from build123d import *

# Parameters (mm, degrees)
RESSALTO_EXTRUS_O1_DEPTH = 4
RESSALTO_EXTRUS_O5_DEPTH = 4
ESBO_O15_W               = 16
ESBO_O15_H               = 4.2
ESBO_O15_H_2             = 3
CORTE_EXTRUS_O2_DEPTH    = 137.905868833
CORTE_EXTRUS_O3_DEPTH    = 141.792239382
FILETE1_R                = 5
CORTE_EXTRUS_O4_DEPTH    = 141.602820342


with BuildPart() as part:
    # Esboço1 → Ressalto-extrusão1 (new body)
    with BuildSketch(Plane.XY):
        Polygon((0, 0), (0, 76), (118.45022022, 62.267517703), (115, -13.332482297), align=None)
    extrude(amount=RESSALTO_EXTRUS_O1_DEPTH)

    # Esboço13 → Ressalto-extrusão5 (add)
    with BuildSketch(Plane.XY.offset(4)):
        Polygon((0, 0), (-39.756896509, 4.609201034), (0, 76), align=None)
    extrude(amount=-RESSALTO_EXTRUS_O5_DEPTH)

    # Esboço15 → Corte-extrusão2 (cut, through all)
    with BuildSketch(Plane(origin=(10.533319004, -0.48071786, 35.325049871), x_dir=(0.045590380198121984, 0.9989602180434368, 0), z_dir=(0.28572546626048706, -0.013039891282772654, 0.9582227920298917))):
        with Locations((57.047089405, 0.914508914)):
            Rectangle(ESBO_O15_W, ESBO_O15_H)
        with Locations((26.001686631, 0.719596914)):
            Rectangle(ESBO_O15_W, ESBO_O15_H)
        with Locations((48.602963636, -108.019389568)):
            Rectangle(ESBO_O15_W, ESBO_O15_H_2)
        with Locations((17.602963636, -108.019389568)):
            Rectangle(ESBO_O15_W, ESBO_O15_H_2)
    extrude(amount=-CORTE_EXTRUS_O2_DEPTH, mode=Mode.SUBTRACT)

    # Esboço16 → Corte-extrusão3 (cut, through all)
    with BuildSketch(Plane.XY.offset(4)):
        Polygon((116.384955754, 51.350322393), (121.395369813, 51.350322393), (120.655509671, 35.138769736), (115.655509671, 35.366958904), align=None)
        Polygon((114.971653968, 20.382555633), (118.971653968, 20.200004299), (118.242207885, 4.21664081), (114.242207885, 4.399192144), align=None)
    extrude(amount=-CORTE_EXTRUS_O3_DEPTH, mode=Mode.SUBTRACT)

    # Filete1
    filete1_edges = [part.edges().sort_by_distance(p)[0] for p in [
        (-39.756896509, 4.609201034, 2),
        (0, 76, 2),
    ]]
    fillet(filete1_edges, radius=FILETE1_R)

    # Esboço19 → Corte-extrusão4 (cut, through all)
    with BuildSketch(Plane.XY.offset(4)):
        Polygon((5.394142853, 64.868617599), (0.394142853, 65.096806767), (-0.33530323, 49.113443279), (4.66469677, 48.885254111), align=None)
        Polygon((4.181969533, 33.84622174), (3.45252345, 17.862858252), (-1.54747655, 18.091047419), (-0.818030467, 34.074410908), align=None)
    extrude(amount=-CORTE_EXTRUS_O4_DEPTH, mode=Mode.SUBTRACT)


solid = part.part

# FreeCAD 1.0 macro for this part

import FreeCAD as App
import Part
import Sketcher

V = App.Vector
Q = App.Units.Quantity


def edges_at(feature, points):
    """Names of the edges that pass closest to the given points."""
    edges = feature.Shape.Edges
    near = lambda p: min(range(len(edges)), key=lambda i: edges[i].distToShape(Part.Vertex(*p))[0])
    return sorted({f"Edge{near(p) + 1}" for p in points})


def add_polygon(sketch, points):
    """Adds a closed chain of lines whose ends are joined by coincident constraints."""
    first, n = sketch.GeometryCount, len(points)
    for a, b in zip(points, points[1:] + points[:1]):
        sketch.addGeometry(Part.LineSegment(App.Vector(*a, 0), App.Vector(*b, 0)), False)
    for i in range(n):
        sketch.addConstraint(Sketcher.Constraint("Coincident", first + i, 2, first + (i + 1) % n, 1))

doc = App.newDocument("Part")
params = doc.addObject("Spreadsheet::Sheet", "Params")
for row, (alias, value) in enumerate([
    ("sketch1_height", "76 mm"),
    ("pad1_length", "4 mm"),
    ("sketch2_height", "76 mm"),
    ("pad2_length", "4 mm"),
    ("sketch3_width", "16 mm"),
    ("sketch3_height", "3 mm"),
    ("sketch3_height2", "4.2 mm"),
    ("sketch4_length", "16 mm"),
    ("fillet_radius", "5 mm"),
    ("sketch5_length", "16 mm"),
], start=1):
    params.set(f"A{row}", alias)
    params.set(f"B{row}", "=" + value)
    params.setAlias(f"B{row}", alias)

body = doc.addObject("PartDesign::Body", "Body")

sketch1 = body.newObject("Sketcher::SketchObject", "Sketch")
sketch1.AttachmentSupport = (doc.getObject("XY_Plane"), [""])
sketch1.MapMode = "FlatFace"
add_polygon(sketch1, [(0, 76), (0, 0), (115, -13.332482), (118.45022, 62.267518)])
sketch1.addConstraint(Sketcher.Constraint("Vertical", 0))
sketch1.addConstraint(Sketcher.Constraint("Coincident", 0, 2, -1, 1))
sketch1.addConstraint(Sketcher.Constraint("Parallel", 1, 3))
sketch1.addConstraint(Sketcher.Constraint("DistanceY", 0, 2, 0, 1, Q("76 mm")))
sketch1.addConstraint(Sketcher.Constraint("DistanceX", -1, 1, 1, 2, Q("115 mm")))
sketch1.addConstraint(Sketcher.Constraint("DistanceY", 1, 2, 2, 2, Q("75.6 mm")))
sketch1.addConstraint(Sketcher.Constraint("Distance", 3, Q("119.243598 mm")))
sketch1.setExpression("Constraints[7]", "Params.sketch1_height")
pad1 = body.newObject("PartDesign::Pad", "Pad")
pad1.Profile = sketch1
pad1.setExpression("Length", "Params.pad1_length")

sketch2 = body.newObject("Sketcher::SketchObject", "Sketch001")
sketch2.AttachmentSupport = (doc.getObject("XY_Plane"), [""])
sketch2.MapMode = "FlatFace"
sketch2.AttachmentOffset = App.Placement(V(0, 0, 4), App.Rotation())
add_polygon(sketch2, [(-39.756897, 4.609201), (0, 0), (0, 76)])
sketch2.addConstraint(Sketcher.Constraint("Vertical", 1))
sketch2.addConstraint(Sketcher.Constraint("Coincident", 0, 2, -1, 1))
sketch2.addConstraint(Sketcher.Constraint("DistanceY", 1, 1, 1, 2, Q("76 mm")))
sketch2.addConstraint(Sketcher.Constraint("DistanceY", -1, 1, 2, 2, Q("4.609201 mm")))
sketch2.addConstraint(Sketcher.Constraint("Distance", 0, Q("40.023188 mm")))
sketch2.setExpression("Constraints[5]", "Params.sketch2_height")
pad2 = body.newObject("PartDesign::Pad", "Pad001")
pad2.Profile = sketch2
pad2.setExpression("Length", "Params.pad2_length")
pad2.Reversed = True

sketch3 = body.newObject("Sketcher::SketchObject", "Sketch002")
sketch3.Placement = App.Placement(V(10.533319, -0.480718, 35.32505), App.Rotation(V(0.04559038, 0.998960218, 0), V(-0.957226449, 0.043685741, 0.286022867), V(0.285725466, -0.013039891, 0.958222792), "ZXY"))
add_polygon(sketch3, [(49.047089, 3.014509), (49.047089, -1.185491), (65.047089, -1.185491), (65.047089, 3.014509)])
add_polygon(sketch3, [(18.001687, 2.819597), (18.001687, -1.380403), (34.001687, -1.380403), (34.001687, 2.819597)])
add_polygon(sketch3, [(40.602964, -106.51939), (40.602964, -109.51939), (56.602964, -109.51939), (56.602964, -106.51939)])
add_polygon(sketch3, [(9.602964, -106.51939), (9.602964, -109.51939), (25.602964, -109.51939), (25.602964, -106.51939)])
sketch3.addConstraint(Sketcher.Constraint("Vertical", 0))
sketch3.addConstraint(Sketcher.Constraint("Horizontal", 1))
sketch3.addConstraint(Sketcher.Constraint("Vertical", 2))
sketch3.addConstraint(Sketcher.Constraint("Horizontal", 3))
sketch3.addConstraint(Sketcher.Constraint("Vertical", 4))
sketch3.addConstraint(Sketcher.Constraint("Horizontal", 5))
sketch3.addConstraint(Sketcher.Constraint("Vertical", 6))
sketch3.addConstraint(Sketcher.Constraint("Horizontal", 7))
sketch3.addConstraint(Sketcher.Constraint("Vertical", 8))
sketch3.addConstraint(Sketcher.Constraint("Horizontal", 9))
sketch3.addConstraint(Sketcher.Constraint("Vertical", 10))
sketch3.addConstraint(Sketcher.Constraint("Horizontal", 11))
sketch3.addConstraint(Sketcher.Constraint("Vertical", 12))
sketch3.addConstraint(Sketcher.Constraint("Horizontal", 13))
sketch3.addConstraint(Sketcher.Constraint("Vertical", 14))
sketch3.addConstraint(Sketcher.Constraint("Horizontal", 15))
sketch3.addConstraint(Sketcher.Constraint("Horizontal", 9, 2, 12, 2))
sketch3.addConstraint(Sketcher.Constraint("Horizontal", 11, 2, 14, 2))
sketch3.addConstraint(Sketcher.Constraint("Equal", 3, 5))
sketch3.addConstraint(Sketcher.Constraint("Equal", 7, 9))
sketch3.addConstraint(Sketcher.Constraint("Equal", 11, 13))
sketch3.addConstraint(Sketcher.Constraint("Equal", 2, 4))
sketch3.addConstraint(Sketcher.Constraint("DistanceX", 1, 1, 1, 2, Q("16 mm")))
sketch3.addConstraint(Sketcher.Constraint("DistanceY", 8, 2, 8, 1, Q("3 mm")))
sketch3.addConstraint(Sketcher.Constraint("DistanceY", 0, 2, 0, 1, Q("4.2 mm")))
sketch3.addConstraint(Sketcher.Constraint("DistanceX", 12, 2, 8, 2, Q("31 mm")))
sketch3.addConstraint(Sketcher.Constraint("DistanceY", 8, 2, 0, 2, Q("108.333898 mm")))
sketch3.addConstraint(Sketcher.Constraint("DistanceX", -1, 1, 0, 2, Q("49.047089 mm")))
sketch3.addConstraint(Sketcher.Constraint("DistanceY", 0, 2, -1, 1, Q("1.185491 mm")))
sketch3.addConstraint(Sketcher.Constraint("DistanceY", 4, 2, 0, 2, Q("0.194912 mm")))
sketch3.addConstraint(Sketcher.Constraint("DistanceX", -1, 1, 4, 2, Q("18.001687 mm")))
sketch3.addConstraint(Sketcher.Constraint("DistanceX", -1, 1, 8, 2, Q("40.602964 mm")))
sketch3.setExpression("Constraints[38]", "Params.sketch3_width")
sketch3.setExpression("Constraints[39]", "Params.sketch3_height")
sketch3.setExpression("Constraints[40]", "Params.sketch3_height2")
pocket1 = body.newObject("PartDesign::Pocket", "Pocket")
pocket1.Profile = sketch3
pocket1.Type = "ThroughAll"

sketch4 = body.newObject("Sketcher::SketchObject", "Sketch003")
sketch4.AttachmentSupport = (doc.getObject("XY_Plane"), [""])
sketch4.MapMode = "FlatFace"
sketch4.AttachmentOffset = App.Placement(V(0, 0, 4), App.Rotation())
add_polygon(sketch4, [(121.39537, 51.350322), (116.384956, 51.350322), (115.65551, 35.366959), (120.65551, 35.13877)])
add_polygon(sketch4, [(118.971654, 20.200004), (114.971654, 20.382556), (114.242208, 4.399192), (118.242208, 4.216641)])
sketch4.addConstraint(Sketcher.Constraint("Horizontal", 0))
sketch4.addConstraint(Sketcher.Constraint("Perpendicular", 1, 2))
sketch4.addConstraint(Sketcher.Constraint("Perpendicular", 2, 3))
sketch4.addConstraint(Sketcher.Constraint("Perpendicular", 3, 4))
sketch4.addConstraint(Sketcher.Constraint("Perpendicular", 4, 5))
sketch4.addConstraint(Sketcher.Constraint("Perpendicular", 5, 6))
sketch4.addConstraint(Sketcher.Constraint("Perpendicular", 6, 7))
sketch4.addConstraint(Sketcher.Constraint("Equal", 1, 5))
sketch4.addConstraint(Sketcher.Constraint("Distance", 1, Q("16 mm")))
sketch4.addConstraint(Sketcher.Constraint("DistanceX", 1, 2, 2, 2, Q("5 mm")))
sketch4.addConstraint(Sketcher.Constraint("DistanceX", 5, 2, 6, 2, Q("4 mm")))
sketch4.addConstraint(Sketcher.Constraint("DistanceX", 4, 2, 0, 2, Q("1.413302 mm")))
sketch4.addConstraint(Sketcher.Constraint("DistanceX", 0, 2, 0, 1, Q("5.010414 mm")))
sketch4.addConstraint(Sketcher.Constraint("DistanceX", -1, 1, 1, 2, Q("115.65551 mm")))
sketch4.addConstraint(Sketcher.Constraint("DistanceY", -1, 1, 1, 2, Q("35.366959 mm")))
sketch4.addConstraint(Sketcher.Constraint("DistanceY", -1, 1, 6, 2, Q("4.216641 mm")))
sketch4.setExpression("Constraints[16]", "Params.sketch4_length")
pocket2 = body.newObject("PartDesign::Pocket", "Pocket001")
pocket2.Profile = sketch4
pocket2.Type = "ThroughAll"
doc.recompute()

fillet = body.newObject("PartDesign::Fillet", "Fillet")
fillet.Base = (pocket2, edges_at(pocket2, [(-39.757, 4.609, 2), (0, 76, 2)]))
fillet.setExpression("Radius", "Params.fillet_radius")

sketch5 = body.newObject("Sketcher::SketchObject", "Sketch004")
sketch5.AttachmentSupport = (doc.getObject("XY_Plane"), [""])
sketch5.MapMode = "FlatFace"
sketch5.AttachmentOffset = App.Placement(V(0, 0, 4), App.Rotation())
add_polygon(sketch5, [(5.394143, 64.868618), (0.394143, 65.096807), (-0.335303, 49.113443), (4.664697, 48.885254)])
add_polygon(sketch5, [(3.452523, 17.862858), (4.18197, 33.846222), (-0.81803, 34.074411), (-1.547477, 18.091047)])
sketch5.addConstraint(Sketcher.Constraint("Perpendicular", 0, 1))
sketch5.addConstraint(Sketcher.Constraint("Perpendicular", 1, 2))
sketch5.addConstraint(Sketcher.Constraint("Perpendicular", 2, 3))
sketch5.addConstraint(Sketcher.Constraint("Parallel", 3, 4))
sketch5.addConstraint(Sketcher.Constraint("Perpendicular", 4, 5))
sketch5.addConstraint(Sketcher.Constraint("Perpendicular", 5, 6))
sketch5.addConstraint(Sketcher.Constraint("Perpendicular", 6, 7))
sketch5.addConstraint(Sketcher.Constraint("Equal", 3, 4))
sketch5.addConstraint(Sketcher.Constraint("Equal", 2, 5))
sketch5.addConstraint(Sketcher.Constraint("Distance", 1, Q("16 mm")))
sketch5.addConstraint(Sketcher.Constraint("DistanceX", 1, 2, 2, 2, Q("5 mm")))
sketch5.addConstraint(Sketcher.Constraint("DistanceX", -1, 1, 4, 2, Q("4.18197 mm")))
sketch5.addConstraint(Sketcher.Constraint("DistanceY", -1, 1, 4, 2, Q("33.846222 mm")))
sketch5.addConstraint(Sketcher.Constraint("DistanceY", -1, 1, 5, 2, Q("34.074411 mm")))
sketch5.addConstraint(Sketcher.Constraint("DistanceY", 4, 2, 1, 2, Q("15.267222 mm")))
sketch5.addConstraint(Sketcher.Constraint("DistanceX", 6, 2, 0, 2, Q("1.941619 mm")))
sketch5.setExpression("Constraints[17]", "Params.sketch5_length")
pocket3 = body.newObject("PartDesign::Pocket", "Pocket002")
pocket3.Profile = sketch5
pocket3.Type = "ThroughAll"

doc.recompute()
